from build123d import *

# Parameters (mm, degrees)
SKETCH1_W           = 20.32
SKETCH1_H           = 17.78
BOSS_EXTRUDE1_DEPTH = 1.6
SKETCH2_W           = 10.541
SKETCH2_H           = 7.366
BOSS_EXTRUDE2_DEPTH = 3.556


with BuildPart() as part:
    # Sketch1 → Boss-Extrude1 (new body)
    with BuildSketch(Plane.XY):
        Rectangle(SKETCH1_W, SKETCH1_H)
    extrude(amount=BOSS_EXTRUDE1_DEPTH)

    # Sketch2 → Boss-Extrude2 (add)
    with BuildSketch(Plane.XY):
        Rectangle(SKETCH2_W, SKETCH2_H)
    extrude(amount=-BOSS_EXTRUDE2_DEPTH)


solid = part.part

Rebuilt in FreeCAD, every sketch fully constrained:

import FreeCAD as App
import Part
import Sketcher

V = App.Vector
Q = App.Units.Quantity


def add_polygon(sketch, points):
    """Adds a closed chain of lines whose ends are joined by coincident constraints."""
    first, n = sketch.GeometryCount, len(points)
    for a, b in zip(points, points[1:] + points[:1]):
        sketch.addGeometry(Part.LineSegment(App.Vector(*a, 0), App.Vector(*b, 0)), False)
    for i in range(n):
        sketch.addConstraint(Sketcher.Constraint("Coincident", first + i, 2, first + (i + 1) % n, 1))

doc = App.newDocument("Part")
params = doc.addObject("Spreadsheet::Sheet", "Params")
for row, (alias, value) in enumerate([
    ("sketch1_width", "0.8 in"),
    ("sketch1_height", "0.7 in"),
    ("pad1_length", "1.6 mm"),
    ("sketch2_height", "0.29 in"),
    ("sketch2_width", "0.415 in"),
    ("pad2_length", "0.14 in"),
], start=1):
    params.set(f"A{row}", alias)
    params.set(f"B{row}", "=" + value)
    params.setAlias(f"B{row}", alias)

body = doc.addObject("PartDesign::Body", "Body")

# Sketch on XY plane
sketch1 = body.newObject("Sketcher::SketchObject", "Sketch")
sketch1.AttachmentSupport = (doc.getObject("XY_Plane"), [""])
sketch1.MapMode = "FlatFace"
add_polygon(sketch1, [(-10, 9), (-10, -9), (10, -9), (10, 9)])  # lines 0-3
sketch1.addConstraint(Sketcher.Constraint("Vertical", 0))
sketch1.addConstraint(Sketcher.Constraint("Horizontal", 1))
sketch1.addConstraint(Sketcher.Constraint("Vertical", 2))
sketch1.addConstraint(Sketcher.Constraint("Horizontal", 3))
sketch1.addConstraint(Sketcher.Constraint("Symmetric", 0, 2, 2, 2, -1, 1))
sketch1.addConstraint(Sketcher.Constraint("DistanceX", 1, 1, 1, 2, Q("0.8 in")))
sketch1.addConstraint(Sketcher.Constraint("DistanceY", 0, 2, 0, 1, Q("0.7 in")))
sketch1.setExpression("Constraints[9]", "Params.sketch1_width")
sketch1.setExpression("Constraints[10]", "Params.sketch1_height")
pad1 = body.newObject("PartDesign::Pad", "Pad")
pad1.Profile = sketch1
pad1.setExpression("Length", "Params.pad1_length")

# Sketch on XY plane
sketch2 = body.newObject("Sketcher::SketchObject", "Sketch001")
sketch2.AttachmentSupport = (doc.getObject("XY_Plane"), [""])
sketch2.MapMode = "FlatFace"
add_polygon(sketch2, [(-5, 4), (-5, -4), (5, -4), (5, 4)])  # lines 0-3
sketch2.addConstraint(Sketcher.Constraint("Vertical", 0))
sketch2.addConstraint(Sketcher.Constraint("Horizontal", 1))
sketch2.addConstraint(Sketcher.Constraint("Vertical", 2))
sketch2.addConstraint(Sketcher.Constraint("Horizontal", 3))
sketch2.addConstraint(Sketcher.Constraint("Symmetric", 0, 2, 2, 2, -1, 1))
sketch2.addConstraint(Sketcher.Constraint("DistanceY", 0, 2, 0, 1, Q("0.29 in")))
sketch2.addConstraint(Sketcher.Constraint("DistanceX", 1, 1, 1, 2, Q("0.415 in")))
sketch2.setExpression("Constraints[9]", "Params.sketch2_height")
sketch2.setExpression("Constraints[10]", "Params.sketch2_width")
pad2 = body.newObject("PartDesign::Pad", "Pad001")
pad2.Profile = sketch2
pad2.setExpression("Length", "Params.pad2_length")
pad2.Reversed = True

doc.recompute()
